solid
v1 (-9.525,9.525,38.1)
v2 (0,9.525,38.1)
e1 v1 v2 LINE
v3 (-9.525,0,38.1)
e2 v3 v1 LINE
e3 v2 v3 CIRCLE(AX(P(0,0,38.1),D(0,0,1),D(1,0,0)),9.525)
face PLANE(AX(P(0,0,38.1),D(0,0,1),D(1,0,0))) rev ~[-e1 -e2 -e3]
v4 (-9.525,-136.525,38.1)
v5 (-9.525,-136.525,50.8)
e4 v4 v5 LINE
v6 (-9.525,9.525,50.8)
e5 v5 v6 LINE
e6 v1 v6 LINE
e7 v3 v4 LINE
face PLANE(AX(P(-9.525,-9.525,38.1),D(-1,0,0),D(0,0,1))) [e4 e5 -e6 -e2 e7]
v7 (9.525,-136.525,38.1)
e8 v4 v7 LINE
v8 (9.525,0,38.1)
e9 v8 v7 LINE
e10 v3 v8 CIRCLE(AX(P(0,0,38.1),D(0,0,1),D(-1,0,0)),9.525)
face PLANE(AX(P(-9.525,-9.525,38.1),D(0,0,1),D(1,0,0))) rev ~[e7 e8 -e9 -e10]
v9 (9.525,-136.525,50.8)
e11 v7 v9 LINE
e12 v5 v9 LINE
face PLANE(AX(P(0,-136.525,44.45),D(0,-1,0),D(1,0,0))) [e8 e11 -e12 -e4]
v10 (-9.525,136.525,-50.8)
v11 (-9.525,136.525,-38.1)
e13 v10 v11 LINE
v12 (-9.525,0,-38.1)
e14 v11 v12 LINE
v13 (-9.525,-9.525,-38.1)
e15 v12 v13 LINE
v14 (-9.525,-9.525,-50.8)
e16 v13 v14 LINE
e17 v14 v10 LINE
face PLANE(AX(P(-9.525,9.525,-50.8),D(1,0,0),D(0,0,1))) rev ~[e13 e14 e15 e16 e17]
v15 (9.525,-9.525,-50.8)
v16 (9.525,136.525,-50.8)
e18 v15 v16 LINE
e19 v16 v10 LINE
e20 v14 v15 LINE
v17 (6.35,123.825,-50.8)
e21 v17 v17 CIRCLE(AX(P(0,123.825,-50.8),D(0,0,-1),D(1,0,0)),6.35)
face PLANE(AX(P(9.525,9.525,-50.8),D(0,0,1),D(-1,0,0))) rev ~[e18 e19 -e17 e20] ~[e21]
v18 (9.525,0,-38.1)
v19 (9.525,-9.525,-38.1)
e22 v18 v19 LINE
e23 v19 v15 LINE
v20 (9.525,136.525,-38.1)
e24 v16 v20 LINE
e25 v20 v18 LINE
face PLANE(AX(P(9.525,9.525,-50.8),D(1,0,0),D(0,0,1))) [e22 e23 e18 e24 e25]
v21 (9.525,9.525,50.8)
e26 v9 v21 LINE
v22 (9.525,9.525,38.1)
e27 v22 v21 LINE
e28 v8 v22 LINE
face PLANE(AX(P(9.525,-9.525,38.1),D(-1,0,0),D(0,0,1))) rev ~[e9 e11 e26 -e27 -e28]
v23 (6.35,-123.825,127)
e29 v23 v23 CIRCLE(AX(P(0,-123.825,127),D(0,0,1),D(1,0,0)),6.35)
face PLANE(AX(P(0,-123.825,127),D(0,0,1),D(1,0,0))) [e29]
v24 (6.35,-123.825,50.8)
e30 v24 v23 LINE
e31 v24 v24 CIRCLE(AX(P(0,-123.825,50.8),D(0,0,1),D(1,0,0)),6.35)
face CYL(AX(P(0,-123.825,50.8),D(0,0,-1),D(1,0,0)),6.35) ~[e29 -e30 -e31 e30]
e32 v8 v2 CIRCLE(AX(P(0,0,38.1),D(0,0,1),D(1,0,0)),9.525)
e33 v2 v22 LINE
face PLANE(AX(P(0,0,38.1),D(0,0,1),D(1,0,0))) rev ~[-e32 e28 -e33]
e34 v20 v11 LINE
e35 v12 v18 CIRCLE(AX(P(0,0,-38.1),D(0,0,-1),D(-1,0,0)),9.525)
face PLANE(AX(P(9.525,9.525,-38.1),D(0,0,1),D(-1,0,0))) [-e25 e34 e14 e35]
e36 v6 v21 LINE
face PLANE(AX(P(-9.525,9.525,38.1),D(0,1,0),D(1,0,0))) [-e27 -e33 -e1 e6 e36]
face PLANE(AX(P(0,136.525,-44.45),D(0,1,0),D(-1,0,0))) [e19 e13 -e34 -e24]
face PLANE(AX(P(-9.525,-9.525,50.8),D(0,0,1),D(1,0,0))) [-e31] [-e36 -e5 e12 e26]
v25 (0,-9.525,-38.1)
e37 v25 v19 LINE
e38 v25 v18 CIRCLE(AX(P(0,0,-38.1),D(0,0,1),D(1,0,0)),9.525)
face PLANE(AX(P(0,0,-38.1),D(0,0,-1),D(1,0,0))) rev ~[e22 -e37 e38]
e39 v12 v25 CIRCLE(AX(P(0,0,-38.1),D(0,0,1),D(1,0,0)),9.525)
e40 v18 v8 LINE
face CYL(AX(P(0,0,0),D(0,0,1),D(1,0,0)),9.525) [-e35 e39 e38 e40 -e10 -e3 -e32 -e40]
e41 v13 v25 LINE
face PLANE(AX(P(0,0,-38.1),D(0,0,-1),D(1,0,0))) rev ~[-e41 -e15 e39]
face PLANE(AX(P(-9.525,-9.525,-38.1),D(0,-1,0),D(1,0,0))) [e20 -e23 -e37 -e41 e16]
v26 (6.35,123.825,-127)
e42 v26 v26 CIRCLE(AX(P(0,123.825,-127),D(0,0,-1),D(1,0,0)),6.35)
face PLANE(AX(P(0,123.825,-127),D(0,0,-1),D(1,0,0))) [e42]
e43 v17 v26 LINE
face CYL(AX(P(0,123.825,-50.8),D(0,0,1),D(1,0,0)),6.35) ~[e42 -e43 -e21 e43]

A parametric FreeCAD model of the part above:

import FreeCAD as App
import Part
import Sketcher
from FreeCAD import Vector
Q = App.Units.Quantity


def add_polygon(sketch, points):
    """Adds a closed chain of lines whose ends are joined by coincident constraints."""
    first, n = sketch.GeometryCount, len(points)
    for a, b in zip(points, points[1:] + points[:1]):
        sketch.addGeometry(Part.LineSegment(App.Vector(*a, 0), App.Vector(*b, 0)), False)
    for i in range(n):
        sketch.addConstraint(Sketcher.Constraint("Coincident", first + i, 2, first + (i + 1) % n, 1))

doc = App.newDocument("Part")
params = doc.addObject("Spreadsheet::Sheet", "Params")
for row, (alias, value) in enumerate([
    ("sketch1_diameter", "0.75 in"),
    ("pad1_length", "3 in"),
    ("sketch2_width", "0.75 in"),
    ("pad2_length", "0.5 in"),
    ("sketch3_height", "0.5 in"),
    ("sketch3_width", "0.75 in"),
    ("pad3_length", "5 in"),
    ("sketch4_width", "0.75 in"),
    ("pad4_length", "0.5 in"),
    ("sketch5_height", "0.5 in"),
    ("sketch5_width", "0.75 in"),
    ("pad5_length", "5 in"),
    ("sketch6_diameter", "0.5 in"),
    ("pad6_length", "3 in"),
    ("sketch7_diameter", "0.5 in"),
    ("pad7_length", "3 in"),
], start=1):
    params.set(f"A{row}", alias)
    params.set(f"B{row}", "=" + value)
    params.setAlias(f"B{row}", alias)

body = doc.addObject("PartDesign::Body", "Body")

# Sketch on XY plane
sketch1 = doc.addObject("Sketcher::SketchObject", "Sketch")
body.addObject(sketch1)
sketch1.AttachmentSupport = (doc.XY_Plane, [""])
sketch1.MapMode = "FlatFace"
sketch1.addGeometry(Part.Circle(Vector(0, 0, 0), Vector(0, 0, 1), 10), False)
sketch1.addConstraint([
    Sketcher.Constraint("Coincident", 0, 3, -1, 1),
    Sketcher.Constraint("Diameter", 0, Q("0.75 in")),
])
sketch1.setExpression("Constraints[1]", "Params.sketch1_diameter")
pad1 = doc.addObject("PartDesign::Pad", "Pad")
body.addObject(pad1)
pad1.Profile = sketch1
pad1.setExpression("Length", "Params.pad1_length")
pad1.Midplane = True

# Sketch on XY plane
sketch2 = doc.addObject("Sketcher::SketchObject", "Sketch001")
body.addObject(sketch2)
sketch2.AttachmentSupport = (doc.XY_Plane, [""])
sketch2.MapMode = "FlatFace"
sketch2.AttachmentOffset = App.Placement(Vector(0, 0, 1.5 * 25.4), App.Rotation())
add_polygon(sketch2, [(-10, 10), (-10, -10), (10, -10), (10, 10)])  # lines 0-3
sketch2.addConstraint([
    Sketcher.Constraint("Vertical", 0),
    Sketcher.Constraint("Horizontal", 1),
    Sketcher.Constraint("Vertical", 2),
    Sketcher.Constraint("Horizontal", 3),
    Sketcher.Constraint("Symmetric", 0, 2, 2, 2, -1, 1),
    Sketcher.Constraint("Equal", 3, 0),
    Sketcher.Constraint("DistanceX", 1, 1, 1, 2, Q("0.75 in")),
])
sketch2.setExpression("Constraints[10]", "Params.sketch2_width")
pad2 = doc.addObject("PartDesign::Pad", "Pad001")
body.addObject(pad2)
pad2.Profile = sketch2
pad2.setExpression("Length", "Params.pad2_length")

# Sketch on XZ plane
sketch3 = doc.addObject("Sketcher::SketchObject", "Sketch002")
body.addObject(sketch3)
sketch3.AttachmentSupport = (doc.XZ_Plane, [""])
sketch3.MapMode = "FlatFace"
sketch3.AttachmentOffset = App.Placement(Vector(0, 0, 0.375 * 25.4), App.Rotation())
add_polygon(sketch3, [(-10, 51), (-10, 38), (10, 38), (10, 51)])  # lines 0-3
sketch3.addConstraint([
    Sketcher.Constraint("Vertical", 0),
    Sketcher.Constraint("Horizontal", 1),
    Sketcher.Constraint("Vertical", 2),
    Sketcher.Constraint("Horizontal", 3),
    Sketcher.Constraint("DistanceY", 0, 2, 0, 1, Q("0.5 in")),
    Sketcher.Constraint("DistanceY", -1, 1, 2, 2, Q("2 in")),
    Sketcher.Constraint("DistanceX", 1, 1, 1, 2, Q("0.75 in")),
    Sketcher.Constraint("DistanceX", 0, 2, -1, 1, Q("0.375 in")),
])
sketch3.setExpression("Constraints[8]", "Params.sketch3_height")
sketch3.setExpression("Constraints[10]", "Params.sketch3_width")
pad3 = doc.addObject("PartDesign::Pad", "Pad002")
body.addObject(pad3)
pad3.Profile = sketch3
pad3.setExpression("Length", "Params.pad3_length")

# Sketch on XY plane
sketch4 = doc.addObject("Sketcher::SketchObject", "Sketch003")
body.addObject(sketch4)
sketch4.AttachmentSupport = (doc.XY_Plane, [""])
sketch4.MapMode = "FlatFace"
sketch4.AttachmentOffset = App.Placement(Vector(0, 0, -1.5 * 25.4), App.Rotation())
add_polygon(sketch4, [(-10, -10), (-10, 10), (10, 10), (10, -10)])  # lines 0-3
sketch4.addConstraint([
    Sketcher.Constraint("Vertical", 0),
    Sketcher.Constraint("Horizontal", 1),
    Sketcher.Constraint("Vertical", 2),
    Sketcher.Constraint("Horizontal", 3),
    Sketcher.Constraint("Symmetric", 0, 2, 2, 2, -1, 1),
    Sketcher.Constraint("Equal", 3, 0),
    Sketcher.Constraint("DistanceX", 1, 1, 1, 2, Q("0.75 in")),
])
sketch4.setExpression("Constraints[10]", "Params.sketch4_width")
pad4 = doc.addObject("PartDesign::Pad", "Pad003")
body.addObject(pad4)
pad4.Profile = sketch4
pad4.setExpression("Length", "Params.pad4_length")
pad4.Reversed = True

# Sketch on XZ plane
sketch5 = doc.addObject("Sketcher::SketchObject", "Sketch004")
body.addObject(sketch5)
sketch5.AttachmentSupport = (doc.XZ_Plane, [""])
sketch5.MapMode = "FlatFace"
sketch5.AttachmentOffset = App.Placement(Vector(0, 0, -0.375 * 25.4), App.Rotation())
add_polygon(sketch5, [(10, -38), (10, -51), (-10, -51), (-10, -38)])  # lines 0-3
sketch5.addConstraint([
    Sketcher.Constraint("Vertical", 0),
    Sketcher.Constraint("Horizontal", 1),
    Sketcher.Constraint("Vertical", 2),
    Sketcher.Constraint("Horizontal", 3),
    Sketcher.Constraint("DistanceY", 0, 2, 0, 1, Q("0.5 in")),
    Sketcher.Constraint("DistanceY", 0, 2, -1, 1, Q("2 in")),
    Sketcher.Constraint("DistanceX", 1, 2, 1, 1, Q("0.75 in")),
    Sketcher.Constraint("DistanceX", -1, 1, 0, 2, Q("0.375 in")),
])
sketch5.setExpression("Constraints[8]", "Params.sketch5_height")
sketch5.setExpression("Constraints[10]", "Params.sketch5_width")
pad5 = doc.addObject("PartDesign::Pad", "Pad004")
body.addObject(pad5)
pad5.Profile = sketch5
pad5.setExpression("Length", "Params.pad5_length")
pad5.Reversed = True

# Sketch on XY plane
sketch6 = doc.addObject("Sketcher::SketchObject", "Sketch005")
body.addObject(sketch6)
sketch6.AttachmentSupport = (doc.XY_Plane, [""])
sketch6.MapMode = "FlatFace"
sketch6.AttachmentOffset = App.Placement(Vector(0, 0, 2 * 25.4), App.Rotation())
sketch6.addGeometry(Part.Circle(Vector(0, -124, 0), Vector(0, 0, 1), 6), False)
sketch6.addConstraint([
    Sketcher.Constraint("PointOnObject", 0, 3, -2),
    Sketcher.Constraint("Diameter", 0, Q("0.5 in")),
    Sketcher.Constraint("DistanceY", 0, 3, -1, 1, Q("4.875 in")),
])
sketch6.setExpression("Constraints[1]", "Params.sketch6_diameter")
pad6 = doc.addObject("PartDesign::Pad", "Pad005")
body.addObject(pad6)
pad6.Profile = sketch6
pad6.setExpression("Length", "Params.pad6_length")

# Sketch on XY plane
sketch7 = doc.addObject("Sketcher::SketchObject", "Sketch006")
body.addObject(sketch7)
sketch7.AttachmentSupport = (doc.XY_Plane, [""])
sketch7.MapMode = "FlatFace"
sketch7.AttachmentOffset = App.Placement(Vector(0, 0, -2 * 25.4), App.Rotation())
sketch7.addGeometry(Part.Circle(Vector(0, 124, 0), Vector(0, 0, 1), 6), False)
sketch7.addConstraint([
    Sketcher.Constraint("PointOnObject", 0, 3, -2),
    Sketcher.Constraint("Diameter", 0, Q("0.5 in")),
    Sketcher.Constraint("DistanceY", -1, 1, 0, 3, Q("4.875 in")),
])
sketch7.setExpression("Constraints[1]", "Params.sketch7_diameter")
pad7 = doc.addObject("PartDesign::Pad", "Pad006")
body.addObject(pad7)
pad7.Profile = sketch7
pad7.setExpression("Length", "Params.pad7_length")
pad7.Reversed = True

doc.recompute()
